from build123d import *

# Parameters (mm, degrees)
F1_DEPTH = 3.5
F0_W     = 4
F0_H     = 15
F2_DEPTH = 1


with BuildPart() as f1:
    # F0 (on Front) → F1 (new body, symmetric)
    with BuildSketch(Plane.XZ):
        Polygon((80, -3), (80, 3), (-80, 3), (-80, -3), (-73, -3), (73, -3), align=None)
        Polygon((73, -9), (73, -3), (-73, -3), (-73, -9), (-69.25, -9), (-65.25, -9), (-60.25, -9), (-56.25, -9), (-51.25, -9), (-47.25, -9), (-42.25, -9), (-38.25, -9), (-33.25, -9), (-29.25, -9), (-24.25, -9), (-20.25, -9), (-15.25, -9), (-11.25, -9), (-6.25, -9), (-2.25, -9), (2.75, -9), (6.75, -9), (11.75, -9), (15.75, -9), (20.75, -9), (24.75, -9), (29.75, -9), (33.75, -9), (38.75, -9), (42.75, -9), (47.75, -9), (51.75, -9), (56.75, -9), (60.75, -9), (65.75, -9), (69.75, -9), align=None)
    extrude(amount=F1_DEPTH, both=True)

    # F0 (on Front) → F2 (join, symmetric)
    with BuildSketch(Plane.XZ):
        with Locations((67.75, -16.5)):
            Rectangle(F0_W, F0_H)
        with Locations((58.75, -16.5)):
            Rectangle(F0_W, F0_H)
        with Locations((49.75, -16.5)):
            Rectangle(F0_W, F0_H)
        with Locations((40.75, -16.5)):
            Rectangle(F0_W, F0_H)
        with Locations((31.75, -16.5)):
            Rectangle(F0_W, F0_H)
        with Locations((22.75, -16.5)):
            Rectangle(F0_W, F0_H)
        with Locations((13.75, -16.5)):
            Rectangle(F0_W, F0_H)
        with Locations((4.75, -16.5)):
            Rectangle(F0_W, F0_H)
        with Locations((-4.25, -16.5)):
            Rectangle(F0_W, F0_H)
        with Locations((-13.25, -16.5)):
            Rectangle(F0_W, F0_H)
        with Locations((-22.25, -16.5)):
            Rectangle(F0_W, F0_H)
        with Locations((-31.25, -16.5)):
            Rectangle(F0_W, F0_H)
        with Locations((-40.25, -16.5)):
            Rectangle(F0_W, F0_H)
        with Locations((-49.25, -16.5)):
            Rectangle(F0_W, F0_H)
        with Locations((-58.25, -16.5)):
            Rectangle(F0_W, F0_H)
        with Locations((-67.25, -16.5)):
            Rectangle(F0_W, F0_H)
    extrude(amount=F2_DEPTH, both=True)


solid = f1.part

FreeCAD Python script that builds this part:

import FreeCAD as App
import Part
import Sketcher
from FreeCAD import Vector


def add_polygon(sketch, points):
    """Adds a closed chain of lines whose ends are joined by coincident constraints."""
    first, n = sketch.GeometryCount, len(points)
    for a, b in zip(points, points[1:] + points[:1]):
        sketch.addGeometry(Part.LineSegment(App.Vector(*a, 0), App.Vector(*b, 0)), False)
    for i in range(n):
        sketch.addConstraint(Sketcher.Constraint("Coincident", first + i, 2, first + (i + 1) % n, 1))

doc = App.newDocument("Part")
body = doc.addObject("PartDesign::Body", "Body")

# Sketch on XZ plane
sketch1 = body.newObject("Sketcher::SketchObject", "Sketch")
sketch1.AttachmentSupport = (doc.getObject("XZ_Plane"), [""])
sketch1.MapMode = "FlatFace"
add_polygon(sketch1, [(80, -3), (80, 3), (-80, 3), (-80, -3), (-73, -3), (-73, -9), (73, -9), (73, -3)])  # lines 0-7
sketch1.addConstraint([
    Sketcher.Constraint("Vertical", 0),
    Sketcher.Constraint("Horizontal", 1),
    Sketcher.Constraint("Vertical", 2),
    Sketcher.Constraint("Horizontal", 3),
    Sketcher.Constraint("Vertical", 4),
    Sketcher.Constraint("Horizontal", 5),
    Sketcher.Constraint("Vertical", 6),
    Sketcher.Constraint("Horizontal", 7),
    Sketcher.Constraint("Symmetric", 0, 2, 2, 2, -1, 1),
    Sketcher.Constraint("Symmetric", 3, 2, 6, 2, -2),
    Sketcher.Constraint("Equal", 2, 4),
    Sketcher.Constraint("DistanceX", 1, 2, 1, 1, 160.0),
    Sketcher.Constraint("DistanceX", 3, 1, 3, 2, 7.0),
    Sketcher.Constraint("DistanceY", 0, 1, 0, 2, 6.0),
])
pad1 = body.newObject("PartDesign::Pad", "Pad")
pad1.Profile = sketch1
pad1.Length = 7
pad1.Midplane = True

# Sketch on XZ plane
sketch2 = body.newObject("Sketcher::SketchObject", "Sketch001")
sketch2.AttachmentSupport = (doc.getObject("XZ_Plane"), [""])
sketch2.MapMode = "FlatFace"
add_polygon(sketch2, [(65.75, -9), (65.75, -24), (69.75, -24), (69.75, -9)])  # lines 0-3
add_polygon(sketch2, [(56.75, -9), (56.75, -24), (60.75, -24), (60.75, -9)])  # lines 4-7
add_polygon(sketch2, [(47.75, -9), (47.75, -24), (51.75, -24), (51.75, -9)])  # lines 8-11
add_polygon(sketch2, [(38.75, -9), (38.75, -24), (42.75, -24), (42.75, -9)])  # lines 12-15
add_polygon(sketch2, [(29.75, -9), (29.75, -24), (33.75, -24), (33.75, -9)])  # lines 16-19
add_polygon(sketch2, [(20.75, -9), (20.75, -24), (24.75, -24), (24.75, -9)])  # lines 20-23
add_polygon(sketch2, [(11.75, -9), (11.75, -24), (15.75, -24), (15.75, -9)])  # lines 24-27
add_polygon(sketch2, [(2.75, -9), (2.75, -24), (6.75, -24), (6.75, -9)])  # lines 28-31
add_polygon(sketch2, [(-6.25, -9), (-6.25, -24), (-2.25, -24), (-2.25, -9)])  # lines 32-35
add_polygon(sketch2, [(-15.25, -9), (-15.25, -24), (-11.25, -24), (-11.25, -9)])  # lines 36-39
add_polygon(sketch2, [(-24.25, -9), (-24.25, -24), (-20.25, -24), (-20.25, -9)])  # lines 40-43
add_polygon(sketch2, [(-33.25, -9), (-33.25, -24), (-29.25, -24), (-29.25, -9)])  # lines 44-47
add_polygon(sketch2, [(-42.25, -9), (-42.25, -24), (-38.25, -24), (-38.25, -9)])  # lines 48-51
add_polygon(sketch2, [(-51.25, -9), (-51.25, -24), (-47.25, -24), (-47.25, -9)])  # lines 52-55
add_polygon(sketch2, [(-60.25, -9), (-60.25, -24), (-56.25, -24), (-56.25, -9)])  # lines 56-59
add_polygon(sketch2, [(-69.25, -9), (-69.25, -24), (-65.25, -24), (-65.25, -9)])  # lines 60-63
sketch2.addConstraint([
    Sketcher.Constraint("Vertical", 0),
    Sketcher.Constraint("Horizontal", 1),
    Sketcher.Constraint("Vertical", 2),
    Sketcher.Constraint("Horizontal", 3),
    Sketcher.Constraint("Vertical", 4),
    Sketcher.Constraint("Horizontal", 5),
    Sketcher.Constraint("Vertical", 6),
    Sketcher.Constraint("Horizontal", 7),
    Sketcher.Constraint("Vertical", 8),
    Sketcher.Constraint("Horizontal", 9),
    Sketcher.Constraint("Vertical", 10),
    Sketcher.Constraint("Horizontal", 11),
    Sketcher.Constraint("Vertical", 12),
    Sketcher.Constraint("Horizontal", 13),
    Sketcher.Constraint("Vertical", 14),
    Sketcher.Constraint("Horizontal", 15),
    Sketcher.Constraint("Vertical", 16),
    Sketcher.Constraint("Horizontal", 17),
    Sketcher.Constraint("Vertical", 18),
    Sketcher.Constraint("Horizontal", 19),
    Sketcher.Constraint("Vertical", 20),
    Sketcher.Constraint("Horizontal", 21),
    Sketcher.Constraint("Vertical", 22),
    Sketcher.Constraint("Horizontal", 23),
    Sketcher.Constraint("Vertical", 24),
    Sketcher.Constraint("Horizontal", 25),
    Sketcher.Constraint("Vertical", 26),
    Sketcher.Constraint("Horizontal", 27),
    Sketcher.Constraint("Vertical", 28),
    Sketcher.Constraint("Horizontal", 29),
    Sketcher.Constraint("Vertical", 30),
    Sketcher.Constraint("Horizontal", 31),
    Sketcher.Constraint("Vertical", 32),
    Sketcher.Constraint("Horizontal", 33),
    Sketcher.Constraint("Vertical", 34),
    Sketcher.Constraint("Horizontal", 35),
    Sketcher.Constraint("Vertical", 36),
    Sketcher.Constraint("Horizontal", 37),
    Sketcher.Constraint("Vertical", 38),
    Sketcher.Constraint("Horizontal", 39),
    Sketcher.Constraint("Vertical", 40),
    Sketcher.Constraint("Horizontal", 41),
    Sketcher.Constraint("Vertical", 42),
    Sketcher.Constraint("Horizontal", 43),
    Sketcher.Constraint("Vertical", 44),
    Sketcher.Constraint("Horizontal", 45),
    Sketcher.Constraint("Vertical", 46),
    Sketcher.Constraint("Horizontal", 47),
    Sketcher.Constraint("Vertical", 48),
    Sketcher.Constraint("Horizontal", 49),
    Sketcher.Constraint("Vertical", 50),
    Sketcher.Constraint("Horizontal", 51),
    Sketcher.Constraint("Vertical", 52),
    Sketcher.Constraint("Horizontal", 53),
    Sketcher.Constraint("Vertical", 54),
    Sketcher.Constraint("Horizontal", 55),
    Sketcher.Constraint("Vertical", 56),
    Sketcher.Constraint("Horizontal", 57),
    Sketcher.Constraint("Vertical", 58),
    Sketcher.Constraint("Horizontal", 59),
    Sketcher.Constraint("Vertical", 60),
    Sketcher.Constraint("Horizontal", 61),
    Sketcher.Constraint("Vertical", 62),
    Sketcher.Constraint("Horizontal", 63),
    Sketcher.Constraint("Horizontal", 1, 2, 4, 2),
    Sketcher.Constraint("Horizontal", 3, 2, 6, 2),
    Sketcher.Constraint("Horizontal", 5, 2, 8, 2),
    Sketcher.Constraint("Horizontal", 7, 2, 10, 2),
    Sketcher.Constraint("Horizontal", 9, 2, 12, 2),
    Sketcher.Constraint("Horizontal", 11, 2, 14, 2),
    Sketcher.Constraint("Horizontal", 13, 2, 16, 2),
    Sketcher.Constraint("Horizontal", 15, 2, 18, 2),
    Sketcher.Constraint("Horizontal", 17, 2, 20, 2),
    Sketcher.Constraint("Horizontal", 19, 2, 22, 2),
    Sketcher.Constraint("Horizontal", 21, 2, 24, 2),
    Sketcher.Constraint("Horizontal", 23, 2, 26, 2),
    Sketcher.Constraint("Horizontal", 25, 2, 28, 2),
    Sketcher.Constraint("Horizontal", 27, 2, 30, 2),
    Sketcher.Constraint("Horizontal", 29, 2, 32, 2),
    Sketcher.Constraint("Horizontal", 31, 2, 34, 2),
    Sketcher.Constraint("Horizontal", 33, 2, 36, 2),
    Sketcher.Constraint("Horizontal", 35, 2, 38, 2),
    Sketcher.Constraint("Horizontal", 37, 2, 40, 2),
    Sketcher.Constraint("Horizontal", 39, 2, 42, 2),
    Sketcher.Constraint("Horizontal", 41, 2, 44, 2),
    Sketcher.Constraint("Horizontal", 43, 2, 46, 2),
    Sketcher.Constraint("Horizontal", 45, 2, 48, 2),
    Sketcher.Constraint("Horizontal", 47, 2, 50, 2),
    Sketcher.Constraint("Horizontal", 49, 2, 52, 2),
    Sketcher.Constraint("Horizontal", 51, 2, 54, 2),
    Sketcher.Constraint("Horizontal", 53, 2, 56, 2),
    Sketcher.Constraint("Horizontal", 55, 2, 58, 2),
    Sketcher.Constraint("Horizontal", 57, 2, 60, 2),
    Sketcher.Constraint("Horizontal", 59, 2, 62, 2),
    Sketcher.Constraint("Equal", 3, 5),
    Sketcher.Constraint("Equal", 7, 9),
    Sketcher.Constraint("Equal", 11, 13),
    Sketcher.Constraint("Equal", 15, 17),
    Sketcher.Constraint("Equal", 19, 21),
    Sketcher.Constraint("Equal", 23, 25),
    Sketcher.Constraint("Equal", 27, 29),
    Sketcher.Constraint("Equal", 31, 33),
    Sketcher.Constraint("Equal", 35, 37),
    Sketcher.Constraint("Equal", 39, 41),
    Sketcher.Constraint("Equal", 43, 45),
    Sketcher.Constraint("Equal", 47, 49),
    Sketcher.Constraint("Equal", 51, 53),
    Sketcher.Constraint("Equal", 55, 57),
    Sketcher.Constraint("Equal", 59, 61),
    Sketcher.Constraint("DistanceX", 1, 1, 1, 2, 4.0),
    Sketcher.Constraint("DistanceY", 0, 2, 0, 1, 15.0),
    Sketcher.Constraint("DistanceY", 0, 2, -1, 1, 24.0),
    Sketcher.Constraint("DistanceX", -1, 1, 0, 2, 65.75),
    Sketcher.Constraint("DistanceX", -1, 1, 4, 2, 56.75),
    Sketcher.Constraint("DistanceX", -1, 1, 8, 2, 47.75),
    Sketcher.Constraint("DistanceX", -1, 1, 12, 2, 38.75),
    Sketcher.Constraint("DistanceX", -1, 1, 16, 2, 29.75),
    Sketcher.Constraint("DistanceX", -1, 1, 20, 2, 20.75),
    Sketcher.Constraint("DistanceX", -1, 1, 24, 2, 11.75),
    Sketcher.Constraint("DistanceX", -1, 1, 28, 2, 2.75),
    Sketcher.Constraint("DistanceX", 32, 2, -1, 1, 6.25),
    Sketcher.Constraint("DistanceX", 36, 2, -1, 1, 15.25),
    Sketcher.Constraint("DistanceX", 40, 2, -1, 1, 24.25),
    Sketcher.Constraint("DistanceX", 44, 2, -1, 1, 33.25),
    Sketcher.Constraint("DistanceX", 48, 2, -1, 1, 42.25),
    Sketcher.Constraint("DistanceX", 52, 2, -1, 1, 51.25),
    Sketcher.Constraint("DistanceX", 56, 2, -1, 1, 60.25),
    Sketcher.Constraint("DistanceX", 60, 2, -1, 1, 69.25),
])
pad2 = body.newObject("PartDesign::Pad", "Pad001")
pad2.Profile = sketch2
pad2.Length = 2
pad2.Midplane = True

doc.recompute()
